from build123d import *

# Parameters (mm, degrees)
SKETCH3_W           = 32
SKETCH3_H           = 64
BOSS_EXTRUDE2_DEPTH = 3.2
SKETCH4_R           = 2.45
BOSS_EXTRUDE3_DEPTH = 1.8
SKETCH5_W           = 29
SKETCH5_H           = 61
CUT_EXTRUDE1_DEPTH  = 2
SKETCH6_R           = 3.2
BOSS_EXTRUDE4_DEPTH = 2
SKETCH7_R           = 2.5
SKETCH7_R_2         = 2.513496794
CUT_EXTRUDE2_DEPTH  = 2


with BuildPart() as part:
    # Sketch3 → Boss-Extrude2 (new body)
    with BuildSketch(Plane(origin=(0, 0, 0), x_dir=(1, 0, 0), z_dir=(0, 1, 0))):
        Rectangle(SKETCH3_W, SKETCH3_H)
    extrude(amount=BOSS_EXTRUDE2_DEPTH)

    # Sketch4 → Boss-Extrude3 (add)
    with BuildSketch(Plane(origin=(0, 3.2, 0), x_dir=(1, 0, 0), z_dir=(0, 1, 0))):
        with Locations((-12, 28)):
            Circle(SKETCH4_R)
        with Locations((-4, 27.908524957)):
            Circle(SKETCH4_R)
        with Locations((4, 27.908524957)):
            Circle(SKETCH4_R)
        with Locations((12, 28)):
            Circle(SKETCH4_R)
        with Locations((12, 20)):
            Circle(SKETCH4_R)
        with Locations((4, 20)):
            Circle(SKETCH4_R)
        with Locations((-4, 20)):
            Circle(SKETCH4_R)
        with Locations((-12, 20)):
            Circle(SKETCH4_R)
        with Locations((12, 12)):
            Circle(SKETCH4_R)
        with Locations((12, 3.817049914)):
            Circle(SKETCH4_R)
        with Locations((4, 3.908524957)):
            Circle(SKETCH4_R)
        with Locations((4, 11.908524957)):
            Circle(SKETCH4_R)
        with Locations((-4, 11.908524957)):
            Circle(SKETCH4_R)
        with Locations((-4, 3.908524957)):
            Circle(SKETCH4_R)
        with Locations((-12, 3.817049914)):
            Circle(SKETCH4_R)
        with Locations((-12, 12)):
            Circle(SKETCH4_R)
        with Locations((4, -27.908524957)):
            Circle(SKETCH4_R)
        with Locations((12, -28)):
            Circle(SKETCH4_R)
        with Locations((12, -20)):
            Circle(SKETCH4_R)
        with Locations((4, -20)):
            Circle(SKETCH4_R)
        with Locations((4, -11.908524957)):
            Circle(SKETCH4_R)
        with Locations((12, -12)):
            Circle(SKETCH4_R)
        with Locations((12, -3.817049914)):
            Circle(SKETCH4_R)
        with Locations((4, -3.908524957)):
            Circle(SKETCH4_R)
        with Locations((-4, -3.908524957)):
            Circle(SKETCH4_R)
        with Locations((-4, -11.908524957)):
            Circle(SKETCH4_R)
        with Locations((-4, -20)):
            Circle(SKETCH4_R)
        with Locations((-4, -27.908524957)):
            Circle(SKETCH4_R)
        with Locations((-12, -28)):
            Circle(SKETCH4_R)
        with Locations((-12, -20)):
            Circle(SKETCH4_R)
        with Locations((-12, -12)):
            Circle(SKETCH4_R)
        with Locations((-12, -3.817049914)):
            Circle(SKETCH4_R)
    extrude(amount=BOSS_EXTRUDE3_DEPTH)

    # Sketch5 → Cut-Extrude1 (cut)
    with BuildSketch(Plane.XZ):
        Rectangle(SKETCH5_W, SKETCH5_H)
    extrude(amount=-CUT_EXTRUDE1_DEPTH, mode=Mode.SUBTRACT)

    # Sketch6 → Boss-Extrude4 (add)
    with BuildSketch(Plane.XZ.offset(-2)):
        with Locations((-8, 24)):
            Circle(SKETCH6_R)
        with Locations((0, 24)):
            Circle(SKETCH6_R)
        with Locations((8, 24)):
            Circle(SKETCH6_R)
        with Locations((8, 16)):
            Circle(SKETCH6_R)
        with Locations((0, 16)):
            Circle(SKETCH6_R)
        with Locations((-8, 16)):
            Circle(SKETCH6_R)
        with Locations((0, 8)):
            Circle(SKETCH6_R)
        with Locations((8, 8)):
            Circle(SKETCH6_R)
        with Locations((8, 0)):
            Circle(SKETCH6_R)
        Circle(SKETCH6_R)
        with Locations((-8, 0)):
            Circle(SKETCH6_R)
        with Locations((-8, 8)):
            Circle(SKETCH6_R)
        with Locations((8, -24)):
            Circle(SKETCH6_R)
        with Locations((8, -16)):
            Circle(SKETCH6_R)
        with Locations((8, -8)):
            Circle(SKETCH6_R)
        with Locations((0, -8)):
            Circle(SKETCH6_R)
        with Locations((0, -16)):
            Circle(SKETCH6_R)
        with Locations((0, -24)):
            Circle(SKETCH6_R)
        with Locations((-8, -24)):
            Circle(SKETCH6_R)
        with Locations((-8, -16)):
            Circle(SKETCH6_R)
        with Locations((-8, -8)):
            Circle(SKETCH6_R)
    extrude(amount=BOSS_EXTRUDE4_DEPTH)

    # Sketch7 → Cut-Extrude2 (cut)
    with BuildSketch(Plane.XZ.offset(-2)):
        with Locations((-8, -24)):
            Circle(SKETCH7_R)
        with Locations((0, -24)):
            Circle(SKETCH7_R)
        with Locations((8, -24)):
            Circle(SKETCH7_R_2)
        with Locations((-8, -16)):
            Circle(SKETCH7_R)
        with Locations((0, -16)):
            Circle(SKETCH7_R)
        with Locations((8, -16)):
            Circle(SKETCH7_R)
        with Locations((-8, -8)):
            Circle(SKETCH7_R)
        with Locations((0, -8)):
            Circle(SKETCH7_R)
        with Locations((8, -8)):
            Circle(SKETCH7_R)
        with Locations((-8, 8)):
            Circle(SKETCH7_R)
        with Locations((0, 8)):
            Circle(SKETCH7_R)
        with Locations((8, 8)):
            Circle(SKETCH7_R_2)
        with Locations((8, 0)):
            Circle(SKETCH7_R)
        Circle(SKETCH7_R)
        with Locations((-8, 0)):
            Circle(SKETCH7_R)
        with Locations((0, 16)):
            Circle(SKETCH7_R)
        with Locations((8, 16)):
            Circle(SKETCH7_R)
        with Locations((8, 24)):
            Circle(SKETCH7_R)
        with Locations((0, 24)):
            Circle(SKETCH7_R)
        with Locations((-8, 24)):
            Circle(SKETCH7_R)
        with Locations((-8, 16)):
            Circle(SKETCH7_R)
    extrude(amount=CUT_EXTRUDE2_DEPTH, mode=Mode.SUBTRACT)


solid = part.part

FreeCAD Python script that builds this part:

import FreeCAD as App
import Part
import Sketcher

V = App.Vector
Q = App.Units.Quantity


def add_polygon(sketch, points):
    """Adds a closed chain of lines whose ends are joined by coincident constraints."""
    first, n = sketch.GeometryCount, len(points)
    for a, b in zip(points, points[1:] + points[:1]):
        sketch.addGeometry(Part.LineSegment(App.Vector(*a, 0), App.Vector(*b, 0)), False)
    for i in range(n):
        sketch.addConstraint(Sketcher.Constraint("Coincident", first + i, 2, first + (i + 1) % n, 1))

doc = App.newDocument("Part")
params = doc.addObject("Spreadsheet::Sheet", "Params")
for row, (alias, value) in enumerate([
    ("sketch1_width", "32 mm"),
    ("sketch1_height", "64 mm"),
    ("pad1_length", "3.2 mm"),
    ("sketch2_diameter", "4.9 mm"),
    ("pad2_length", "1.8 mm"),
    ("sketch3_width", "29 mm"),
    ("sketch3_height", "61 mm"),
    ("pocket1_length", "2 mm"),
    ("sketch4_diameter", "6.4 mm"),
    ("pad3_length", "2 mm"),
    ("sketch5_diameter", "5 mm"),
    ("pocket2_length", "2 mm"),
], start=1):
    params.set(f"A{row}", alias)
    params.set(f"B{row}", "=" + value)
    params.setAlias(f"B{row}", alias)

body = doc.addObject("PartDesign::Body", "Body")

# Sketch on XZ plane
sketch1 = body.newObject("Sketcher::SketchObject", "Sketch")
sketch1.AttachmentSupport = (doc.getObject("XZ_Plane"), [""])
sketch1.MapMode = "FlatFace"
add_polygon(sketch1, [(-16, -32), (-16, 32), (16, 32), (16, -32)])  # lines 0-3
sketch1.addConstraint([
    Sketcher.Constraint("Vertical", 0),
    Sketcher.Constraint("Horizontal", 1),
    Sketcher.Constraint("Vertical", 2),
    Sketcher.Constraint("Horizontal", 3),
    Sketcher.Constraint("Symmetric", 0, 2, 2, 2, -1, 1),
    Sketcher.Constraint("DistanceX", 1, 1, 1, 2, Q("32 mm")),
    Sketcher.Constraint("DistanceY", 0, 1, 0, 2, Q("64 mm")),
])
sketch1.setExpression("Constraints[9]", "Params.sketch1_width")
sketch1.setExpression("Constraints[10]", "Params.sketch1_height")
pad1 = body.newObject("PartDesign::Pad", "Pad")
pad1.Profile = sketch1
pad1.setExpression("Length", "Params.pad1_length")
pad1.Reversed = True

# Sketch on XZ plane
sketch2 = body.newObject("Sketcher::SketchObject", "Sketch001")
sketch2.AttachmentSupport = (doc.getObject("XZ_Plane"), [""])
sketch2.MapMode = "FlatFace"
sketch2.AttachmentOffset = App.Placement(V(0, 0, -3.2), App.Rotation())
sketch2.addGeometry([
    Part.Circle(V(-12, -28, 0), V(0, 0, 1), 2.45),  # 0
    Part.Circle(V(-4, -27.908525, 0), V(0, 0, 1), 2.45),  # 1
    Part.Circle(V(4, -27.908525, 0), V(0, 0, 1), 2.45),  # 2
    Part.Circle(V(12, -28, 0), V(0, 0, 1), 2.45),  # 3
    Part.Circle(V(12, -20, 0), V(0, 0, 1), 2.45),  # 4
    Part.Circle(V(4, -20, 0), V(0, 0, 1), 2.45),  # 5
    Part.Circle(V(-4, -20, 0), V(0, 0, 1), 2.45),  # 6
    Part.Circle(V(-12, -20, 0), V(0, 0, 1), 2.45),  # 7
    Part.Circle(V(12, -12, 0), V(0, 0, 1), 2.45),  # 8
    Part.Circle(V(12, -3.81705, 0), V(0, 0, 1), 2.45),  # 9
    Part.Circle(V(4, -3.908525, 0), V(0, 0, 1), 2.45),  # 10
    Part.Circle(V(4, -11.908525, 0), V(0, 0, 1), 2.45),  # 11
    Part.Circle(V(-4, -11.908525, 0), V(0, 0, 1), 2.45),  # 12
    Part.Circle(V(-4, -3.908525, 0), V(0, 0, 1), 2.45),  # 13
    Part.Circle(V(-12, -3.81705, 0), V(0, 0, 1), 2.45),  # 14
    Part.Circle(V(-12, -12, 0), V(0, 0, 1), 2.45),  # 15
    Part.Circle(V(4, 27.908525, 0), V(0, 0, 1), 2.45),  # 16
    Part.Circle(V(12, 28, 0), V(0, 0, 1), 2.45),  # 17
    Part.Circle(V(12, 20, 0), V(0, 0, 1), 2.45),  # 18
    Part.Circle(V(4, 20, 0), V(0, 0, 1), 2.45),  # 19
    Part.Circle(V(4, 11.908525, 0), V(0, 0, 1), 2.45),  # 20
    Part.Circle(V(12, 12, 0), V(0, 0, 1), 2.45),  # 21
    Part.Circle(V(12, 3.81705, 0), V(0, 0, 1), 2.45),  # 22
    Part.Circle(V(4, 3.908525, 0), V(0, 0, 1), 2.45),  # 23
    Part.Circle(V(-4, 3.908525, 0), V(0, 0, 1), 2.45),  # 24
    Part.Circle(V(-4, 11.908525, 0), V(0, 0, 1), 2.45),  # 25
    Part.Circle(V(-4, 20, 0), V(0, 0, 1), 2.45),  # 26
    Part.Circle(V(-4, 27.908525, 0), V(0, 0, 1), 2.45),  # 27
    Part.Circle(V(-12, 28, 0), V(0, 0, 1), 2.45),  # 28
    Part.Circle(V(-12, 20, 0), V(0, 0, 1), 2.45),  # 29
    Part.Circle(V(-12, 12, 0), V(0, 0, 1), 2.45),  # 30
    Part.Circle(V(-12, 3.81705, 0), V(0, 0, 1), 2.45),  # 31
], False)
sketch2.addConstraint([
    Sketcher.Constraint("Equal", 0, 1),
    Sketcher.Constraint("Equal", 1, 2),
    Sketcher.Constraint("Equal", 2, 3),
    Sketcher.Constraint("Equal", 3, 4),
    Sketcher.Constraint("Equal", 4, 5),
    Sketcher.Constraint("Equal", 5, 6),
    Sketcher.Constraint("Equal", 6, 7),
    Sketcher.Constraint("Equal", 7, 8),
    Sketcher.Constraint("Equal", 8, 9),
    Sketcher.Constraint("Equal", 9, 10),
    Sketcher.Constraint("Equal", 10, 11),
    Sketcher.Constraint("Equal", 11, 12),
    Sketcher.Constraint("Equal", 12, 13),
    Sketcher.Constraint("Equal", 13, 14),
    Sketcher.Constraint("Equal", 14, 15),
    Sketcher.Constraint("Equal", 15, 16),
    Sketcher.Constraint("Equal", 16, 17),
    Sketcher.Constraint("Equal", 17, 18),
    Sketcher.Constraint("Equal", 18, 19),
    Sketcher.Constraint("Equal", 19, 20),
    Sketcher.Constraint("Equal", 20, 21),
    Sketcher.Constraint("Equal", 21, 22),
    Sketcher.Constraint("Equal", 22, 23),
    Sketcher.Constraint("Equal", 23, 24),
    Sketcher.Constraint("Equal", 24, 25),
    Sketcher.Constraint("Equal", 25, 26),
    Sketcher.Constraint("Equal", 26, 27),
    Sketcher.Constraint("Equal", 27, 28),
    Sketcher.Constraint("Equal", 28, 29),
    Sketcher.Constraint("Equal", 29, 30),
    Sketcher.Constraint("Equal", 30, 31),
    Sketcher.Constraint("Symmetric", 1, 3, 16, 3, -1, 1),
    Sketcher.Constraint("Symmetric", 0, 3, 17, 3, -1, 1),
    Sketcher.Constraint("Symmetric", 7, 3, 18, 3, -1, 1),
    Sketcher.Constraint("Symmetric", 6, 3, 19, 3, -1, 1),
    Sketcher.Constraint("Symmetric", 12, 3, 20, 3, -1, 1),
    Sketcher.Constraint("Symmetric", 15, 3, 21, 3, -1, 1),
    Sketcher.Constraint("Symmetric", 14, 3, 22, 3, -1, 1),
    Sketcher.Constraint("Symmetric", 13, 3, 23, 3, -1, 1),
    Sketcher.Constraint("Symmetric", 10, 3, 24, 3, -1, 1),
    Sketcher.Constraint("Symmetric", 11, 3, 25, 3, -1, 1),
    Sketcher.Constraint("Symmetric", 5, 3, 26, 3, -1, 1),
    Sketcher.Constraint("Symmetric", 2, 3, 27, 3, -1, 1),
    Sketcher.Constraint("Symmetric", 3, 3, 28, 3, -1, 1),
    Sketcher.Constraint("Symmetric", 4, 3, 29, 3, -1, 1),
    Sketcher.Constraint("Symmetric", 8, 3, 30, 3, -1, 1),
    Sketcher.Constraint("Symmetric", 9, 3, 31, 3, -1, 1),
    Sketcher.Constraint("Symmetric", 1, 3, 2, 3, -2),
    Sketcher.Constraint("Symmetric", 0, 3, 3, 3, -2),
    Sketcher.Constraint("Symmetric", 5, 3, 6, 3, -2),
    Sketcher.Constraint("Symmetric", 4, 3, 7, 3, -2),
    Sketcher.Constraint("Symmetric", 11, 3, 12, 3, -2),
    Sketcher.Constraint("Symmetric", 10, 3, 13, 3, -2),
    Sketcher.Constraint("Symmetric", 9, 3, 14, 3, -2),
    Sketcher.Constraint("Symmetric", 8, 3, 15, 3, -2),
    Sketcher.Constraint("Horizontal", 4, 3, 5, 3),
    Sketcher.Constraint("Vertical", 3, 3, 4, 3),
    Sketcher.Constraint("Vertical", 2, 3, 5, 3),
    Sketcher.Constraint("Vertical", 4, 3, 8, 3),
    Sketcher.Constraint("Vertical", 8, 3, 9, 3),
    Sketcher.Constraint("Vertical", 5, 3, 10, 3),
    Sketcher.Constraint("Vertical", 10, 3, 11, 3),
    Sketcher.Constraint("Diameter", 0, Q("4.9 mm")),
    Sketcher.Constraint("DistanceX", 0, 3, -1, 1, Q("12 mm")),
    Sketcher.Constraint("DistanceY", 0, 3, -1, 1, Q("28 mm")),
    Sketcher.Constraint("DistanceX", 1, 3, -1, 1, Q("4 mm")),
    Sketcher.Constraint("DistanceY", 4, 3, -1, 1, Q("20 mm")),
    Sketcher.Constraint("DistanceY", 8, 3, -1, 1, Q("12 mm")),
    Sketcher.Constraint("DistanceY", 11, 3, 10, 3, Q("8 mm")),
    Sketcher.Constraint("DistanceY", 20, 3, 16, 3, Q("16 mm")),
    Sketcher.Constraint("DistanceY", 9, 3, 22, 3, Q("7.6341 mm")),
    Sketcher.Constraint("DistanceY", 10, 3, 16, 3, Q("31.81705 mm")),
])
sketch2.setExpression("Constraints[62]", "Params.sketch2_diameter")
pad2 = body.newObject("PartDesign::Pad", "Pad001")
pad2.Profile = sketch2
pad2.setExpression("Length", "Params.pad2_length")
pad2.Reversed = True

# Sketch on XZ plane
sketch3 = body.newObject("Sketcher::SketchObject", "Sketch002")
sketch3.AttachmentSupport = (doc.getObject("XZ_Plane"), [""])
sketch3.MapMode = "FlatFace"
add_polygon(sketch3, [(-14.5, 30.5), (-14.5, -30.5), (14.5, -30.5), (14.5, 30.5)])  # lines 0-3
sketch3.addConstraint([
    Sketcher.Constraint("Vertical", 0),
    Sketcher.Constraint("Horizontal", 1),
    Sketcher.Constraint("Vertical", 2),
    Sketcher.Constraint("Horizontal", 3),
    Sketcher.Constraint("Symmetric", 0, 2, 2, 2, -1, 1),
    Sketcher.Constraint("DistanceX", 1, 1, 1, 2, Q("29 mm")),
    Sketcher.Constraint("DistanceY", 0, 2, 0, 1, Q("61 mm")),
])
sketch3.setExpression("Constraints[9]", "Params.sketch3_width")
sketch3.setExpression("Constraints[10]", "Params.sketch3_height")
pocket1 = body.newObject("PartDesign::Pocket", "Pocket")
pocket1.Profile = sketch3
pocket1.setExpression("Length", "Params.pocket1_length")

# Sketch on XZ plane
sketch4 = body.newObject("Sketcher::SketchObject", "Sketch003")
sketch4.AttachmentSupport = (doc.getObject("XZ_Plane"), [""])
sketch4.MapMode = "FlatFace"
sketch4.AttachmentOffset = App.Placement(V(0, 0, -2), App.Rotation())
sketch4.addGeometry([
    Part.Circle(V(-8, 24, 0), V(0, 0, 1), 3.2),  # 0
    Part.Circle(V(0, 24, 0), V(0, 0, 1), 3.2),  # 1
    Part.Circle(V(8, 24, 0), V(0, 0, 1), 3.2),  # 2
    Part.Circle(V(8, 16, 0), V(0, 0, 1), 3.2),  # 3
    Part.Circle(V(0, 16, 0), V(0, 0, 1), 3.2),  # 4
    Part.Circle(V(-8, 16, 0), V(0, 0, 1), 3.2),  # 5
    Part.Circle(V(0, 8, 0), V(0, 0, 1), 3.2),  # 6
    Part.Circle(V(8, 8, 0), V(0, 0, 1), 3.2),  # 7
    Part.Circle(V(8, 0, 0), V(0, 0, 1), 3.2),  # 8
    Part.Circle(V(0, 0, 0), V(0, 0, 1), 3.2),  # 9
    Part.Circle(V(-8, 0, 0), V(0, 0, 1), 3.2),  # 10
    Part.Circle(V(-8, 8, 0), V(0, 0, 1), 3.2),  # 11
    Part.Circle(V(8, -24, 0), V(0, 0, 1), 3.2),  # 12
    Part.Circle(V(8, -16, 0), V(0, 0, 1), 3.2),  # 13
    Part.Circle(V(8, -8, 0), V(0, 0, 1), 3.2),  # 14
    Part.Circle(V(0, -8, 0), V(0, 0, 1), 3.2),  # 15
    Part.Circle(V(0, -16, 0), V(0, 0, 1), 3.2),  # 16
    Part.Circle(V(0, -24, 0), V(0, 0, 1), 3.2),  # 17
    Part.Circle(V(-8, -24, 0), V(0, 0, 1), 3.2),  # 18
    Part.Circle(V(-8, -16, 0), V(0, 0, 1), 3.2),  # 19
    Part.Circle(V(-8, -8, 0), V(0, 0, 1), 3.2),  # 20
], False)
sketch4.addConstraint([
    Sketcher.Constraint("Coincident", 9, 3, -1, 1),
    Sketcher.Constraint("Equal", 0, 1),
    Sketcher.Constraint("Equal", 1, 2),
    Sketcher.Constraint("Equal", 2, 3),
    Sketcher.Constraint("Equal", 3, 4),
    Sketcher.Constraint("Equal", 4, 5),
    Sketcher.Constraint("Equal", 5, 6),
    Sketcher.Constraint("Equal", 6, 7),
    Sketcher.Constraint("Equal", 7, 8),
    Sketcher.Constraint("Equal", 8, 9),
    Sketcher.Constraint("Equal", 9, 10),
    Sketcher.Constraint("Equal", 10, 11),
    Sketcher.Constraint("Equal", 11, 12),
    Sketcher.Constraint("Equal", 12, 13),
    Sketcher.Constraint("Equal", 13, 14),
    Sketcher.Constraint("Equal", 14, 15),
    Sketcher.Constraint("Equal", 15, 16),
    Sketcher.Constraint("Equal", 16, 17),
    Sketcher.Constraint("Equal", 17, 18),
    Sketcher.Constraint("Equal", 18, 19),
    Sketcher.Constraint("Equal", 19, 20),
    Sketcher.Constraint("Symmetric", 8, 3, 10, 3, -1, 1),
    Sketcher.Constraint("Symmetric", 0, 3, 12, 3, -1, 1),
    Sketcher.Constraint("Symmetric", 5, 3, 13, 3, -1, 1),
    Sketcher.Constraint("Symmetric", 11, 3, 14, 3, -1, 1),
    Sketcher.Constraint("Symmetric", 6, 3, 15, 3, -1, 1),
    Sketcher.Constraint("Symmetric", 4, 3, 16, 3, -1, 1),
    Sketcher.Constraint("Symmetric", 1, 3, 17, 3, -1, 1),
    Sketcher.Constraint("Symmetric", 2, 3, 18, 3, -1, 1),
    Sketcher.Constraint("Symmetric", 3, 3, 19, 3, -1, 1),
    Sketcher.Constraint("Symmetric", 7, 3, 20, 3, -1, 1),
    Sketcher.Constraint("Symmetric", 0, 3, 2, 3, -2),
    Sketcher.Constraint("Symmetric", 3, 3, 5, 3, -2),
    Sketcher.Constraint("Symmetric", 7, 3, 11, 3, -2),
    Sketcher.Constraint("PointOnObject", 1, 3, -2),
    Sketcher.Constraint("PointOnObject", 4, 3, -2),
    Sketcher.Constraint("PointOnObject", 6, 3, -2),
    Sketcher.Constraint("PointOnObject", 8, 3, -1),
    Sketcher.Constraint("Horizontal", 0, 3, 1, 3),
    Sketcher.Constraint("Horizontal", 3, 3, 4, 3),
    Sketcher.Constraint("Horizontal", 6, 3, 7, 3),
    Sketcher.Constraint("Vertical", 2, 3, 3, 3),
    Sketcher.Constraint("Vertical", 3, 3, 7, 3),
    Sketcher.Constraint("Vertical", 7, 3, 8, 3),
    Sketcher.Constraint("Diameter", 0, Q("6.4 mm")),
    Sketcher.Constraint("DistanceX", 0, 3, -1, 1, Q("8 mm")),
    Sketcher.Constraint("DistanceY", -1, 1, 0, 3, Q("24 mm")),
    Sketcher.Constraint("DistanceY", -1, 1, 3, 3, Q("16 mm")),
    Sketcher.Constraint("DistanceY", -1, 1, 6, 3, Q("8 mm")),
])
sketch4.setExpression("Constraints[44]", "Params.sketch4_diameter")
pad3 = body.newObject("PartDesign::Pad", "Pad002")
pad3.Profile = sketch4
pad3.setExpression("Length", "Params.pad3_length")

# Sketch on XZ plane
sketch5 = body.newObject("Sketcher::SketchObject", "Sketch004")
sketch5.AttachmentSupport = (doc.getObject("XZ_Plane"), [""])
sketch5.MapMode = "FlatFace"
sketch5.AttachmentOffset = App.Placement(V(0, 0, -2), App.Rotation())
sketch5.addGeometry([
    Part.Circle(V(-8, -24, 0), V(0, 0, 1), 2.5),  # 0
    Part.Circle(V(0, -24, 0), V(0, 0, 1), 2.5),  # 1
    Part.Circle(V(8, -24, 0), V(0, 0, 1), 2.513497),  # 2
    Part.Circle(V(-8, -16, 0), V(0, 0, 1), 2.5),  # 3
    Part.Circle(V(0, -16, 0), V(0, 0, 1), 2.5),  # 4
    Part.Circle(V(8, -16, 0), V(0, 0, 1), 2.5),  # 5
    Part.Circle(V(-8, -8, 0), V(0, 0, 1), 2.5),  # 6
    Part.Circle(V(0, -8, 0), V(0, 0, 1), 2.5),  # 7
    Part.Circle(V(8, -8, 0), V(0, 0, 1), 2.5),  # 8
    Part.Circle(V(-8, 8, 0), V(0, 0, 1), 2.5),  # 9
    Part.Circle(V(0, 8, 0), V(0, 0, 1), 2.5),  # 10
    Part.Circle(V(8, 8, 0), V(0, 0, 1), 2.513497),  # 11
    Part.Circle(V(8, 0, 0), V(0, 0, 1), 2.5),  # 12
    Part.Circle(V(0, 0, 0), V(0, 0, 1), 2.5),  # 13
    Part.Circle(V(-8, 0, 0), V(0, 0, 1), 2.5),  # 14
    Part.Circle(V(0, 16, 0), V(0, 0, 1), 2.5),  # 15
    Part.Circle(V(8, 16, 0), V(0, 0, 1), 2.5),  # 16
    Part.Circle(V(8, 24, 0), V(0, 0, 1), 2.5),  # 17
    Part.Circle(V(0, 24, 0), V(0, 0, 1), 2.5),  # 18
    Part.Circle(V(-8, 24, 0), V(0, 0, 1), 2.5),  # 19
    Part.Circle(V(-8, 16, 0), V(0, 0, 1), 2.5),  # 20
], False)
sketch5.addConstraint([
    Sketcher.Constraint("Coincident", 13, 3, -1, 1),
    Sketcher.Constraint("Equal", 0, 1),
    Sketcher.Constraint("Equal", 1, 3),
    Sketcher.Constraint("Equal", 3, 4),
    Sketcher.Constraint("Equal", 4, 5),
    Sketcher.Constraint("Equal", 5, 6),
    Sketcher.Constraint("Equal", 6, 7),
    Sketcher.Constraint("Equal", 7, 8),
    Sketcher.Constraint("Equal", 8, 9),
    Sketcher.Constraint("Equal", 9, 10),
    Sketcher.Constraint("Equal", 2, 11),
    Sketcher.Constraint("Equal", 10, 12),
    Sketcher.Constraint("Equal", 12, 13),
    Sketcher.Constraint("Equal", 13, 14),
    Sketcher.Constraint("Equal", 14, 15),
    Sketcher.Constraint("Equal", 15, 16),
    Sketcher.Constraint("Equal", 16, 17),
    Sketcher.Constraint("Equal", 17, 18),
    Sketcher.Constraint("Equal", 18, 19),
    Sketcher.Constraint("Equal", 19, 20),
    Sketcher.Constraint("Symmetric", 8, 3, 9, 3, -1, 1),
    Sketcher.Constraint("Symmetric", 7, 3, 10, 3, -1, 1),
    Sketcher.Constraint("Symmetric", 6, 3, 11, 3, -1, 1),
    Sketcher.Constraint("Symmetric", 12, 3, 14, 3, -1, 1),
    Sketcher.Constraint("Symmetric", 4, 3, 15, 3, -1, 1),
    Sketcher.Constraint("Symmetric", 3, 3, 16, 3, -1, 1),
    Sketcher.Constraint("Symmetric", 0, 3, 17, 3, -1, 1),
    Sketcher.Constraint("Symmetric", 1, 3, 18, 3, -1, 1),
    Sketcher.Constraint("Symmetric", 2, 3, 19, 3, -1, 1),
    Sketcher.Constraint("Symmetric", 5, 3, 20, 3, -1, 1),
    Sketcher.Constraint("Symmetric", 0, 3, 2, 3, -2),
    Sketcher.Constraint("Symmetric", 3, 3, 5, 3, -2),
    Sketcher.Constraint("Symmetric", 6, 3, 8, 3, -2),
    Sketcher.Constraint("PointOnObject", 1, 3, -2),
    Sketcher.Constraint("PointOnObject", 4, 3, -2),
    Sketcher.Constraint("PointOnObject", 7, 3, -2),
    Sketcher.Constraint("PointOnObject", 12, 3, -1),
    Sketcher.Constraint("Horizontal", 0, 3, 1, 3),
    Sketcher.Constraint("Horizontal", 3, 3, 4, 3),
    Sketcher.Constraint("Horizontal", 6, 3, 7, 3),
    Sketcher.Constraint("Vertical", 0, 3, 3, 3),
    Sketcher.Constraint("Vertical", 3, 3, 6, 3),
    Sketcher.Constraint("Vertical", 11, 3, 12, 3),
    Sketcher.Constraint("Diameter", 0, Q("5 mm")),
    Sketcher.Constraint("DistanceX", 0, 3, -1, 1, Q("8 mm")),
    Sketcher.Constraint("DistanceY", 0, 3, -1, 1, Q("24 mm")),
    Sketcher.Constraint("DistanceY", 3, 3, -1, 1, Q("16 mm")),
    Sketcher.Constraint("DistanceY", 6, 3, -1, 1, Q("8 mm")),
    Sketcher.Constraint("Diameter", 2, Q("5.026994 mm")),
])
sketch5.setExpression("Constraints[43]", "Params.sketch5_diameter")
pocket2 = body.newObject("PartDesign::Pocket", "Pocket001")
pocket2.Profile = sketch5
pocket2.setExpression("Length", "Params.pocket2_length")
pocket2.Reversed = True

doc.recompute()
